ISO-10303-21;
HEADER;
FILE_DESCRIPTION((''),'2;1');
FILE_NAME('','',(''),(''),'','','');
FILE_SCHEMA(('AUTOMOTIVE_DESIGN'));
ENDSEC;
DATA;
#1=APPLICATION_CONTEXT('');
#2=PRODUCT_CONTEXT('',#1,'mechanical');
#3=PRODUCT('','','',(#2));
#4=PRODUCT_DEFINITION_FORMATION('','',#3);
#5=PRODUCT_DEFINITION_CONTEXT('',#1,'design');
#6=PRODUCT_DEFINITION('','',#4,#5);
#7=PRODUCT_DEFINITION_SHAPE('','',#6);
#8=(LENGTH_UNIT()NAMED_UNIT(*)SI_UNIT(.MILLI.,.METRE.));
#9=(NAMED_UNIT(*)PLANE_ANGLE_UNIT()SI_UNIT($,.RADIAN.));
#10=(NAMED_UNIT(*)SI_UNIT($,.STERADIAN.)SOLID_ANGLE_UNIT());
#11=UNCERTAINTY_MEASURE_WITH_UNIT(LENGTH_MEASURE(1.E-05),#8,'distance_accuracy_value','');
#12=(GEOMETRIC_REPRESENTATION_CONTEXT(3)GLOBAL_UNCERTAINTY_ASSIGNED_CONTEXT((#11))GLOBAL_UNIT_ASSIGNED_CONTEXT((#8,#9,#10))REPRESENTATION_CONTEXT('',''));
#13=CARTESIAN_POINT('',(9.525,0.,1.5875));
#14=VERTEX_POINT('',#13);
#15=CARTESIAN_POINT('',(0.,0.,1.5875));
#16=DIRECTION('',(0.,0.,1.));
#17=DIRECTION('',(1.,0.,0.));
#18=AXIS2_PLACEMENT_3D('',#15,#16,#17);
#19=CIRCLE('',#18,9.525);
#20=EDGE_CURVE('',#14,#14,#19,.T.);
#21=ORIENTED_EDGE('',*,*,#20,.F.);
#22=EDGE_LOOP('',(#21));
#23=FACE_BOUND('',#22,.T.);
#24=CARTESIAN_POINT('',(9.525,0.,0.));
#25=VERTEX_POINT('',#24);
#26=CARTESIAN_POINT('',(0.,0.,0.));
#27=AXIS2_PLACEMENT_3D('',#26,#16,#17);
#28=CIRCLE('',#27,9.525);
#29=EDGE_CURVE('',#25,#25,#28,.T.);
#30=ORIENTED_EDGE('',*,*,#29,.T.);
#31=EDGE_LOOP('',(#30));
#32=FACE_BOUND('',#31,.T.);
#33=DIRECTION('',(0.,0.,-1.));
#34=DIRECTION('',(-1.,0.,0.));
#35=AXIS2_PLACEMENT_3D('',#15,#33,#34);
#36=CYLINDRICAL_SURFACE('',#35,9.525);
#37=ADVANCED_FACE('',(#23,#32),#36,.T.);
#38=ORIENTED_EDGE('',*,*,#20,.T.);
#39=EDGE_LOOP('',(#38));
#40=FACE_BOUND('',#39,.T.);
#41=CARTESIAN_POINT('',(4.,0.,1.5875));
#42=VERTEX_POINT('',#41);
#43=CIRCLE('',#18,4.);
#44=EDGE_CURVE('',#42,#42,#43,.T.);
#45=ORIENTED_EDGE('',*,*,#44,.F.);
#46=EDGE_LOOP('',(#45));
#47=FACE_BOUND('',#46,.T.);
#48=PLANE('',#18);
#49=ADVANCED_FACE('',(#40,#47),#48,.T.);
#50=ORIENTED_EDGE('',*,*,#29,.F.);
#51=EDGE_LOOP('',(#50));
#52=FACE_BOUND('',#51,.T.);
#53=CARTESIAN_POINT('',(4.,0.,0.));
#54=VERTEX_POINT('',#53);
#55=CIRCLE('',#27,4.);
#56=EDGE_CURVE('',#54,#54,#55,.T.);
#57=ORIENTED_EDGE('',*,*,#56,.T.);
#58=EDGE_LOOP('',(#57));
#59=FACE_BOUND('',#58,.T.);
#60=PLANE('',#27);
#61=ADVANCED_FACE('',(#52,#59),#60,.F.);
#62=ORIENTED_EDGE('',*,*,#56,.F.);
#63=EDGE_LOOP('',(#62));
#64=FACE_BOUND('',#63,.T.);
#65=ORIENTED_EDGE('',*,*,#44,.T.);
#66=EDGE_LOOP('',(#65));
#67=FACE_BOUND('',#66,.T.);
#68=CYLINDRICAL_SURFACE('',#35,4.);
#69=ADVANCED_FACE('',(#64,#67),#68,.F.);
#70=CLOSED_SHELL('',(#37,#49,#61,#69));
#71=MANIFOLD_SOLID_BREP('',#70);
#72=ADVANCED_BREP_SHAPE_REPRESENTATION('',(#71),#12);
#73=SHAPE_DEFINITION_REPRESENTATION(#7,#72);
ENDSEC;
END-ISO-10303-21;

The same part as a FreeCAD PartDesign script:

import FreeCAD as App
import Part
import Sketcher
from FreeCAD import Vector
Q = App.Units.Quantity

doc = App.newDocument("Part")
params = doc.addObject("Spreadsheet::Sheet", "Params")
for row, (alias, value) in enumerate([
    ("sketch1_diameter", "0.75 in"),
    ("pad1_length", "0.0625 in"),
], start=1):
    params.set(f"A{row}", alias)
    params.set(f"B{row}", "=" + value)
    params.setAlias(f"B{row}", alias)

body = doc.addObject("PartDesign::Body", "Body")

# Sketch on XY plane
sketch1 = doc.addObject("Sketcher::SketchObject", "Sketch")
body.addObject(sketch1)
sketch1.AttachmentSupport = (doc.XY_Plane, [""])
sketch1.MapMode = "FlatFace"
sketch1.addGeometry(Part.Circle(Vector(0, 0, 0), Vector(0, 0, 1), 9.5), False)
sketch1.addGeometry(Part.Circle(Vector(0, 0, 0), Vector(0, 0, 1), 4), False)
sketch1.addConstraint(Sketcher.Constraint("Coincident", 0, 3, -1, 1))
sketch1.addConstraint(Sketcher.Constraint("Coincident", 1, 3, -1, 1))
sketch1.addConstraint(Sketcher.Constraint("Diameter", 0, Q("0.75 in")))
sketch1.addConstraint(Sketcher.Constraint("Diameter", 1, 8.0))
sketch1.setExpression("Constraints[2]", "Params.sketch1_diameter")
pad1 = doc.addObject("PartDesign::Pad", "Pad")
body.addObject(pad1)
pad1.Profile = sketch1
pad1.setExpression("Length", "Params.pad1_length")

doc.recompute()
